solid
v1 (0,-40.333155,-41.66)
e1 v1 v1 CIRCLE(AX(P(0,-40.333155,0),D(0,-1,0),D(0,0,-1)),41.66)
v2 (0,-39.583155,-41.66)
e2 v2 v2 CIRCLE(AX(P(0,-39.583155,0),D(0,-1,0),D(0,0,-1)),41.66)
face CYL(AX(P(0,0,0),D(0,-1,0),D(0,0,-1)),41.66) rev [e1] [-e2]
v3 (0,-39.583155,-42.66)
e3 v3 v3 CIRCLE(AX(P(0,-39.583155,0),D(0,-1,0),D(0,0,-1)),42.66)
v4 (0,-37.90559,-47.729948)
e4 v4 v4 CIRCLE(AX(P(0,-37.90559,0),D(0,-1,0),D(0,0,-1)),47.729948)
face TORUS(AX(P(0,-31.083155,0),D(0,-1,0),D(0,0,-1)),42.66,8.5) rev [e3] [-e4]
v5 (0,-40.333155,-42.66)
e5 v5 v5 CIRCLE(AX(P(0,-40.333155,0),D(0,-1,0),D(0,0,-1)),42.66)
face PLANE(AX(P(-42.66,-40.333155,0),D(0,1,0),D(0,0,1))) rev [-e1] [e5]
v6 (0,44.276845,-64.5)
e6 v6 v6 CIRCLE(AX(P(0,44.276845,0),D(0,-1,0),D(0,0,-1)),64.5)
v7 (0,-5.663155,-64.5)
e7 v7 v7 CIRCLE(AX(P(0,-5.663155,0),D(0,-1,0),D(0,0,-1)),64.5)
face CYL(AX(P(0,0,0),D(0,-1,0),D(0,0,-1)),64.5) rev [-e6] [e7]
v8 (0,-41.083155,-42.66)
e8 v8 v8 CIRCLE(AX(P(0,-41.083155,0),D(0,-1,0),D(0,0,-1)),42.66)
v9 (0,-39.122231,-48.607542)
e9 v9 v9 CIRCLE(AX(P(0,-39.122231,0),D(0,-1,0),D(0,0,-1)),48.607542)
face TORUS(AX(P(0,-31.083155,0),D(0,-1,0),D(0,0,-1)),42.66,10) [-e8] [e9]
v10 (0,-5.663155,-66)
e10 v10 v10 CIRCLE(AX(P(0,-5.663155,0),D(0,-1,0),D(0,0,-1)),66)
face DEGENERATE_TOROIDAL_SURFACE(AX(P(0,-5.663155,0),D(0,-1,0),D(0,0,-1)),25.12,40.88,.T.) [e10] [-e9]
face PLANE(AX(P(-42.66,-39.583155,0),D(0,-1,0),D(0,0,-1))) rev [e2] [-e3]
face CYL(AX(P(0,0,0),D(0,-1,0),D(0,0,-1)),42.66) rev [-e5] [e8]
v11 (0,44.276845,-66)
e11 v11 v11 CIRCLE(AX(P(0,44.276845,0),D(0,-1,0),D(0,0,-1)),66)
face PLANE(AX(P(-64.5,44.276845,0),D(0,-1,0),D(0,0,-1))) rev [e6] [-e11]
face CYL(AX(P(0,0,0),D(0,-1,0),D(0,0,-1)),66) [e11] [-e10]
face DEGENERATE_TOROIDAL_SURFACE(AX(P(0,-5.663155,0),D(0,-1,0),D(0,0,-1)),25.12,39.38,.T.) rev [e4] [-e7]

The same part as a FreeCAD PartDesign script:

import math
import FreeCAD as App
import Part
import Sketcher
from FreeCAD import Vector
Q = App.Units.Quantity

doc = App.newDocument("Part")
body = doc.addObject("PartDesign::Body", "Body")

# Sketch on XY plane
sketch1 = body.newObject("Sketcher::SketchObject", "Sketch")
sketch1.AttachmentSupport = (doc.getObject("XY_Plane"), [""])
sketch1.MapMode = "FlatFace"
sketch1.addGeometry(Part.LineSegment(Vector(-64.5, -5.663155, 0), Vector(-64.5, 44.276845, 0)), False)
sketch1.addGeometry(Part.LineSegment(Vector(-64.5, 44.276845, 0), Vector(-66, 44.276845, 0)), False)
sketch1.addGeometry(Part.LineSegment(Vector(-66, 44.276845, 0), Vector(-66, -5.663155, 0)), False)
sketch1.addGeometry(Part.ArcOfCircle(Part.Circle(Vector(-25.12, -5.663155, 0), Vector(0, 0, 1), 40.88), math.radians(180), math.radians(234.931981)), False)
sketch1.addGeometry(Part.ArcOfCircle(Part.Circle(Vector(-42.66, -31.083155, 0), Vector(0, 0, 1), 10), math.radians(-126.495115), math.radians(-90)), False)
sketch1.addGeometry(Part.LineSegment(Vector(-42.66, -41.083155, 0), Vector(-42.66, -40.333155, 0)), False)
sketch1.addGeometry(Part.LineSegment(Vector(-42.66, -40.333155, 0), Vector(-41.66, -40.333155, 0)), False)
sketch1.addGeometry(Part.LineSegment(Vector(-41.66, -40.333155, 0), Vector(-41.66, -39.583155, 0)), False)
sketch1.addGeometry(Part.LineSegment(Vector(-41.66, -39.583155, 0), Vector(-42.66, -39.583155, 0)), False)
sketch1.addGeometry(Part.ArcOfCircle(Part.Circle(Vector(-42.66, -31.083155, 0), Vector(0, 0, 1), 8.5), math.radians(-126.617104), math.radians(-90)), False)
sketch1.addGeometry(Part.ArcOfCircle(Part.Circle(Vector(-25.12, -5.663155, 0), Vector(0, 0, 1), 39.38), math.radians(180), math.radians(234.960012)), False)
sketch1.addConstraint(Sketcher.Constraint("Coincident", 0, 2, 1, 1))
sketch1.addConstraint(Sketcher.Constraint("Coincident", 1, 2, 2, 1))
sketch1.addConstraint(Sketcher.Constraint("Tangent", 2, 2, 3, 1))
sketch1.addConstraint(Sketcher.Constraint("Coincident", 3, 2, 4, 1))
sketch1.addConstraint(Sketcher.Constraint("Coincident", 4, 2, 5, 1))
sketch1.addConstraint(Sketcher.Constraint("Coincident", 5, 2, 6, 1))
sketch1.addConstraint(Sketcher.Constraint("Coincident", 6, 2, 7, 1))
sketch1.addConstraint(Sketcher.Constraint("Coincident", 7, 2, 8, 1))
sketch1.addConstraint(Sketcher.Constraint("Tangent", 8, 2, 9, 2))
sketch1.addConstraint(Sketcher.Constraint("Coincident", 9, 1, 10, 2))
sketch1.addConstraint(Sketcher.Constraint("Tangent", 10, 1, 0, 1))
sketch1.addConstraint(Sketcher.Constraint("Vertical", 0))
sketch1.addConstraint(Sketcher.Constraint("Horizontal", 1))
sketch1.addConstraint(Sketcher.Constraint("Vertical", 2))
sketch1.addConstraint(Sketcher.Constraint("Vertical", 5))
sketch1.addConstraint(Sketcher.Constraint("Horizontal", 6))
sketch1.addConstraint(Sketcher.Constraint("Vertical", 7))
sketch1.addConstraint(Sketcher.Constraint("Horizontal", 8))
sketch1.addConstraint(Sketcher.Constraint("Coincident", 9, 3, 4, 3))
sketch1.addConstraint(Sketcher.Constraint("Coincident", 10, 3, 3, 3))
sketch1.addConstraint(Sketcher.Constraint("Vertical", 9, 3, 4, 2))
sketch1.addConstraint(Sketcher.Constraint("Equal", 5, 7))
sketch1.addConstraint(Sketcher.Constraint("Radius", 4, Q("10 mm")))
sketch1.addConstraint(Sketcher.Constraint("Radius", 9, Q("8.5 mm")))
sketch1.addConstraint(Sketcher.Constraint("DistanceX", 6, 1, 6, 2, Q("1 mm")))
sketch1.addConstraint(Sketcher.Constraint("Radius", 3, Q("40.88 mm")))
sketch1.addConstraint(Sketcher.Constraint("Radius", 10, Q("39.38 mm")))
sketch1.addConstraint(Sketcher.Constraint("DistanceX", 1, 2, -1, 1, Q("66 mm")))
sketch1.addConstraint(Sketcher.Constraint("DistanceY", 0, 1, 0, 2, Q("49.94 mm")))
sketch1.addConstraint(Sketcher.Constraint("DistanceX", 4, 3, -1, 1, Q("42.66 mm")))
sketch1.addConstraint(Sketcher.Constraint("DistanceY", 4, 3, 3, 3, Q("25.42 mm")))
sketch1.addConstraint(Sketcher.Constraint("DistanceY", 3, 2, -1, 1, Q("39.122231 mm")))
revolution = body.newObject("PartDesign::Revolution", "Revolution")
revolution.Profile = sketch1
revolution.ReferenceAxis = (sketch1, ["V_Axis"])
revolution.Angle = 360

doc.recompute()
